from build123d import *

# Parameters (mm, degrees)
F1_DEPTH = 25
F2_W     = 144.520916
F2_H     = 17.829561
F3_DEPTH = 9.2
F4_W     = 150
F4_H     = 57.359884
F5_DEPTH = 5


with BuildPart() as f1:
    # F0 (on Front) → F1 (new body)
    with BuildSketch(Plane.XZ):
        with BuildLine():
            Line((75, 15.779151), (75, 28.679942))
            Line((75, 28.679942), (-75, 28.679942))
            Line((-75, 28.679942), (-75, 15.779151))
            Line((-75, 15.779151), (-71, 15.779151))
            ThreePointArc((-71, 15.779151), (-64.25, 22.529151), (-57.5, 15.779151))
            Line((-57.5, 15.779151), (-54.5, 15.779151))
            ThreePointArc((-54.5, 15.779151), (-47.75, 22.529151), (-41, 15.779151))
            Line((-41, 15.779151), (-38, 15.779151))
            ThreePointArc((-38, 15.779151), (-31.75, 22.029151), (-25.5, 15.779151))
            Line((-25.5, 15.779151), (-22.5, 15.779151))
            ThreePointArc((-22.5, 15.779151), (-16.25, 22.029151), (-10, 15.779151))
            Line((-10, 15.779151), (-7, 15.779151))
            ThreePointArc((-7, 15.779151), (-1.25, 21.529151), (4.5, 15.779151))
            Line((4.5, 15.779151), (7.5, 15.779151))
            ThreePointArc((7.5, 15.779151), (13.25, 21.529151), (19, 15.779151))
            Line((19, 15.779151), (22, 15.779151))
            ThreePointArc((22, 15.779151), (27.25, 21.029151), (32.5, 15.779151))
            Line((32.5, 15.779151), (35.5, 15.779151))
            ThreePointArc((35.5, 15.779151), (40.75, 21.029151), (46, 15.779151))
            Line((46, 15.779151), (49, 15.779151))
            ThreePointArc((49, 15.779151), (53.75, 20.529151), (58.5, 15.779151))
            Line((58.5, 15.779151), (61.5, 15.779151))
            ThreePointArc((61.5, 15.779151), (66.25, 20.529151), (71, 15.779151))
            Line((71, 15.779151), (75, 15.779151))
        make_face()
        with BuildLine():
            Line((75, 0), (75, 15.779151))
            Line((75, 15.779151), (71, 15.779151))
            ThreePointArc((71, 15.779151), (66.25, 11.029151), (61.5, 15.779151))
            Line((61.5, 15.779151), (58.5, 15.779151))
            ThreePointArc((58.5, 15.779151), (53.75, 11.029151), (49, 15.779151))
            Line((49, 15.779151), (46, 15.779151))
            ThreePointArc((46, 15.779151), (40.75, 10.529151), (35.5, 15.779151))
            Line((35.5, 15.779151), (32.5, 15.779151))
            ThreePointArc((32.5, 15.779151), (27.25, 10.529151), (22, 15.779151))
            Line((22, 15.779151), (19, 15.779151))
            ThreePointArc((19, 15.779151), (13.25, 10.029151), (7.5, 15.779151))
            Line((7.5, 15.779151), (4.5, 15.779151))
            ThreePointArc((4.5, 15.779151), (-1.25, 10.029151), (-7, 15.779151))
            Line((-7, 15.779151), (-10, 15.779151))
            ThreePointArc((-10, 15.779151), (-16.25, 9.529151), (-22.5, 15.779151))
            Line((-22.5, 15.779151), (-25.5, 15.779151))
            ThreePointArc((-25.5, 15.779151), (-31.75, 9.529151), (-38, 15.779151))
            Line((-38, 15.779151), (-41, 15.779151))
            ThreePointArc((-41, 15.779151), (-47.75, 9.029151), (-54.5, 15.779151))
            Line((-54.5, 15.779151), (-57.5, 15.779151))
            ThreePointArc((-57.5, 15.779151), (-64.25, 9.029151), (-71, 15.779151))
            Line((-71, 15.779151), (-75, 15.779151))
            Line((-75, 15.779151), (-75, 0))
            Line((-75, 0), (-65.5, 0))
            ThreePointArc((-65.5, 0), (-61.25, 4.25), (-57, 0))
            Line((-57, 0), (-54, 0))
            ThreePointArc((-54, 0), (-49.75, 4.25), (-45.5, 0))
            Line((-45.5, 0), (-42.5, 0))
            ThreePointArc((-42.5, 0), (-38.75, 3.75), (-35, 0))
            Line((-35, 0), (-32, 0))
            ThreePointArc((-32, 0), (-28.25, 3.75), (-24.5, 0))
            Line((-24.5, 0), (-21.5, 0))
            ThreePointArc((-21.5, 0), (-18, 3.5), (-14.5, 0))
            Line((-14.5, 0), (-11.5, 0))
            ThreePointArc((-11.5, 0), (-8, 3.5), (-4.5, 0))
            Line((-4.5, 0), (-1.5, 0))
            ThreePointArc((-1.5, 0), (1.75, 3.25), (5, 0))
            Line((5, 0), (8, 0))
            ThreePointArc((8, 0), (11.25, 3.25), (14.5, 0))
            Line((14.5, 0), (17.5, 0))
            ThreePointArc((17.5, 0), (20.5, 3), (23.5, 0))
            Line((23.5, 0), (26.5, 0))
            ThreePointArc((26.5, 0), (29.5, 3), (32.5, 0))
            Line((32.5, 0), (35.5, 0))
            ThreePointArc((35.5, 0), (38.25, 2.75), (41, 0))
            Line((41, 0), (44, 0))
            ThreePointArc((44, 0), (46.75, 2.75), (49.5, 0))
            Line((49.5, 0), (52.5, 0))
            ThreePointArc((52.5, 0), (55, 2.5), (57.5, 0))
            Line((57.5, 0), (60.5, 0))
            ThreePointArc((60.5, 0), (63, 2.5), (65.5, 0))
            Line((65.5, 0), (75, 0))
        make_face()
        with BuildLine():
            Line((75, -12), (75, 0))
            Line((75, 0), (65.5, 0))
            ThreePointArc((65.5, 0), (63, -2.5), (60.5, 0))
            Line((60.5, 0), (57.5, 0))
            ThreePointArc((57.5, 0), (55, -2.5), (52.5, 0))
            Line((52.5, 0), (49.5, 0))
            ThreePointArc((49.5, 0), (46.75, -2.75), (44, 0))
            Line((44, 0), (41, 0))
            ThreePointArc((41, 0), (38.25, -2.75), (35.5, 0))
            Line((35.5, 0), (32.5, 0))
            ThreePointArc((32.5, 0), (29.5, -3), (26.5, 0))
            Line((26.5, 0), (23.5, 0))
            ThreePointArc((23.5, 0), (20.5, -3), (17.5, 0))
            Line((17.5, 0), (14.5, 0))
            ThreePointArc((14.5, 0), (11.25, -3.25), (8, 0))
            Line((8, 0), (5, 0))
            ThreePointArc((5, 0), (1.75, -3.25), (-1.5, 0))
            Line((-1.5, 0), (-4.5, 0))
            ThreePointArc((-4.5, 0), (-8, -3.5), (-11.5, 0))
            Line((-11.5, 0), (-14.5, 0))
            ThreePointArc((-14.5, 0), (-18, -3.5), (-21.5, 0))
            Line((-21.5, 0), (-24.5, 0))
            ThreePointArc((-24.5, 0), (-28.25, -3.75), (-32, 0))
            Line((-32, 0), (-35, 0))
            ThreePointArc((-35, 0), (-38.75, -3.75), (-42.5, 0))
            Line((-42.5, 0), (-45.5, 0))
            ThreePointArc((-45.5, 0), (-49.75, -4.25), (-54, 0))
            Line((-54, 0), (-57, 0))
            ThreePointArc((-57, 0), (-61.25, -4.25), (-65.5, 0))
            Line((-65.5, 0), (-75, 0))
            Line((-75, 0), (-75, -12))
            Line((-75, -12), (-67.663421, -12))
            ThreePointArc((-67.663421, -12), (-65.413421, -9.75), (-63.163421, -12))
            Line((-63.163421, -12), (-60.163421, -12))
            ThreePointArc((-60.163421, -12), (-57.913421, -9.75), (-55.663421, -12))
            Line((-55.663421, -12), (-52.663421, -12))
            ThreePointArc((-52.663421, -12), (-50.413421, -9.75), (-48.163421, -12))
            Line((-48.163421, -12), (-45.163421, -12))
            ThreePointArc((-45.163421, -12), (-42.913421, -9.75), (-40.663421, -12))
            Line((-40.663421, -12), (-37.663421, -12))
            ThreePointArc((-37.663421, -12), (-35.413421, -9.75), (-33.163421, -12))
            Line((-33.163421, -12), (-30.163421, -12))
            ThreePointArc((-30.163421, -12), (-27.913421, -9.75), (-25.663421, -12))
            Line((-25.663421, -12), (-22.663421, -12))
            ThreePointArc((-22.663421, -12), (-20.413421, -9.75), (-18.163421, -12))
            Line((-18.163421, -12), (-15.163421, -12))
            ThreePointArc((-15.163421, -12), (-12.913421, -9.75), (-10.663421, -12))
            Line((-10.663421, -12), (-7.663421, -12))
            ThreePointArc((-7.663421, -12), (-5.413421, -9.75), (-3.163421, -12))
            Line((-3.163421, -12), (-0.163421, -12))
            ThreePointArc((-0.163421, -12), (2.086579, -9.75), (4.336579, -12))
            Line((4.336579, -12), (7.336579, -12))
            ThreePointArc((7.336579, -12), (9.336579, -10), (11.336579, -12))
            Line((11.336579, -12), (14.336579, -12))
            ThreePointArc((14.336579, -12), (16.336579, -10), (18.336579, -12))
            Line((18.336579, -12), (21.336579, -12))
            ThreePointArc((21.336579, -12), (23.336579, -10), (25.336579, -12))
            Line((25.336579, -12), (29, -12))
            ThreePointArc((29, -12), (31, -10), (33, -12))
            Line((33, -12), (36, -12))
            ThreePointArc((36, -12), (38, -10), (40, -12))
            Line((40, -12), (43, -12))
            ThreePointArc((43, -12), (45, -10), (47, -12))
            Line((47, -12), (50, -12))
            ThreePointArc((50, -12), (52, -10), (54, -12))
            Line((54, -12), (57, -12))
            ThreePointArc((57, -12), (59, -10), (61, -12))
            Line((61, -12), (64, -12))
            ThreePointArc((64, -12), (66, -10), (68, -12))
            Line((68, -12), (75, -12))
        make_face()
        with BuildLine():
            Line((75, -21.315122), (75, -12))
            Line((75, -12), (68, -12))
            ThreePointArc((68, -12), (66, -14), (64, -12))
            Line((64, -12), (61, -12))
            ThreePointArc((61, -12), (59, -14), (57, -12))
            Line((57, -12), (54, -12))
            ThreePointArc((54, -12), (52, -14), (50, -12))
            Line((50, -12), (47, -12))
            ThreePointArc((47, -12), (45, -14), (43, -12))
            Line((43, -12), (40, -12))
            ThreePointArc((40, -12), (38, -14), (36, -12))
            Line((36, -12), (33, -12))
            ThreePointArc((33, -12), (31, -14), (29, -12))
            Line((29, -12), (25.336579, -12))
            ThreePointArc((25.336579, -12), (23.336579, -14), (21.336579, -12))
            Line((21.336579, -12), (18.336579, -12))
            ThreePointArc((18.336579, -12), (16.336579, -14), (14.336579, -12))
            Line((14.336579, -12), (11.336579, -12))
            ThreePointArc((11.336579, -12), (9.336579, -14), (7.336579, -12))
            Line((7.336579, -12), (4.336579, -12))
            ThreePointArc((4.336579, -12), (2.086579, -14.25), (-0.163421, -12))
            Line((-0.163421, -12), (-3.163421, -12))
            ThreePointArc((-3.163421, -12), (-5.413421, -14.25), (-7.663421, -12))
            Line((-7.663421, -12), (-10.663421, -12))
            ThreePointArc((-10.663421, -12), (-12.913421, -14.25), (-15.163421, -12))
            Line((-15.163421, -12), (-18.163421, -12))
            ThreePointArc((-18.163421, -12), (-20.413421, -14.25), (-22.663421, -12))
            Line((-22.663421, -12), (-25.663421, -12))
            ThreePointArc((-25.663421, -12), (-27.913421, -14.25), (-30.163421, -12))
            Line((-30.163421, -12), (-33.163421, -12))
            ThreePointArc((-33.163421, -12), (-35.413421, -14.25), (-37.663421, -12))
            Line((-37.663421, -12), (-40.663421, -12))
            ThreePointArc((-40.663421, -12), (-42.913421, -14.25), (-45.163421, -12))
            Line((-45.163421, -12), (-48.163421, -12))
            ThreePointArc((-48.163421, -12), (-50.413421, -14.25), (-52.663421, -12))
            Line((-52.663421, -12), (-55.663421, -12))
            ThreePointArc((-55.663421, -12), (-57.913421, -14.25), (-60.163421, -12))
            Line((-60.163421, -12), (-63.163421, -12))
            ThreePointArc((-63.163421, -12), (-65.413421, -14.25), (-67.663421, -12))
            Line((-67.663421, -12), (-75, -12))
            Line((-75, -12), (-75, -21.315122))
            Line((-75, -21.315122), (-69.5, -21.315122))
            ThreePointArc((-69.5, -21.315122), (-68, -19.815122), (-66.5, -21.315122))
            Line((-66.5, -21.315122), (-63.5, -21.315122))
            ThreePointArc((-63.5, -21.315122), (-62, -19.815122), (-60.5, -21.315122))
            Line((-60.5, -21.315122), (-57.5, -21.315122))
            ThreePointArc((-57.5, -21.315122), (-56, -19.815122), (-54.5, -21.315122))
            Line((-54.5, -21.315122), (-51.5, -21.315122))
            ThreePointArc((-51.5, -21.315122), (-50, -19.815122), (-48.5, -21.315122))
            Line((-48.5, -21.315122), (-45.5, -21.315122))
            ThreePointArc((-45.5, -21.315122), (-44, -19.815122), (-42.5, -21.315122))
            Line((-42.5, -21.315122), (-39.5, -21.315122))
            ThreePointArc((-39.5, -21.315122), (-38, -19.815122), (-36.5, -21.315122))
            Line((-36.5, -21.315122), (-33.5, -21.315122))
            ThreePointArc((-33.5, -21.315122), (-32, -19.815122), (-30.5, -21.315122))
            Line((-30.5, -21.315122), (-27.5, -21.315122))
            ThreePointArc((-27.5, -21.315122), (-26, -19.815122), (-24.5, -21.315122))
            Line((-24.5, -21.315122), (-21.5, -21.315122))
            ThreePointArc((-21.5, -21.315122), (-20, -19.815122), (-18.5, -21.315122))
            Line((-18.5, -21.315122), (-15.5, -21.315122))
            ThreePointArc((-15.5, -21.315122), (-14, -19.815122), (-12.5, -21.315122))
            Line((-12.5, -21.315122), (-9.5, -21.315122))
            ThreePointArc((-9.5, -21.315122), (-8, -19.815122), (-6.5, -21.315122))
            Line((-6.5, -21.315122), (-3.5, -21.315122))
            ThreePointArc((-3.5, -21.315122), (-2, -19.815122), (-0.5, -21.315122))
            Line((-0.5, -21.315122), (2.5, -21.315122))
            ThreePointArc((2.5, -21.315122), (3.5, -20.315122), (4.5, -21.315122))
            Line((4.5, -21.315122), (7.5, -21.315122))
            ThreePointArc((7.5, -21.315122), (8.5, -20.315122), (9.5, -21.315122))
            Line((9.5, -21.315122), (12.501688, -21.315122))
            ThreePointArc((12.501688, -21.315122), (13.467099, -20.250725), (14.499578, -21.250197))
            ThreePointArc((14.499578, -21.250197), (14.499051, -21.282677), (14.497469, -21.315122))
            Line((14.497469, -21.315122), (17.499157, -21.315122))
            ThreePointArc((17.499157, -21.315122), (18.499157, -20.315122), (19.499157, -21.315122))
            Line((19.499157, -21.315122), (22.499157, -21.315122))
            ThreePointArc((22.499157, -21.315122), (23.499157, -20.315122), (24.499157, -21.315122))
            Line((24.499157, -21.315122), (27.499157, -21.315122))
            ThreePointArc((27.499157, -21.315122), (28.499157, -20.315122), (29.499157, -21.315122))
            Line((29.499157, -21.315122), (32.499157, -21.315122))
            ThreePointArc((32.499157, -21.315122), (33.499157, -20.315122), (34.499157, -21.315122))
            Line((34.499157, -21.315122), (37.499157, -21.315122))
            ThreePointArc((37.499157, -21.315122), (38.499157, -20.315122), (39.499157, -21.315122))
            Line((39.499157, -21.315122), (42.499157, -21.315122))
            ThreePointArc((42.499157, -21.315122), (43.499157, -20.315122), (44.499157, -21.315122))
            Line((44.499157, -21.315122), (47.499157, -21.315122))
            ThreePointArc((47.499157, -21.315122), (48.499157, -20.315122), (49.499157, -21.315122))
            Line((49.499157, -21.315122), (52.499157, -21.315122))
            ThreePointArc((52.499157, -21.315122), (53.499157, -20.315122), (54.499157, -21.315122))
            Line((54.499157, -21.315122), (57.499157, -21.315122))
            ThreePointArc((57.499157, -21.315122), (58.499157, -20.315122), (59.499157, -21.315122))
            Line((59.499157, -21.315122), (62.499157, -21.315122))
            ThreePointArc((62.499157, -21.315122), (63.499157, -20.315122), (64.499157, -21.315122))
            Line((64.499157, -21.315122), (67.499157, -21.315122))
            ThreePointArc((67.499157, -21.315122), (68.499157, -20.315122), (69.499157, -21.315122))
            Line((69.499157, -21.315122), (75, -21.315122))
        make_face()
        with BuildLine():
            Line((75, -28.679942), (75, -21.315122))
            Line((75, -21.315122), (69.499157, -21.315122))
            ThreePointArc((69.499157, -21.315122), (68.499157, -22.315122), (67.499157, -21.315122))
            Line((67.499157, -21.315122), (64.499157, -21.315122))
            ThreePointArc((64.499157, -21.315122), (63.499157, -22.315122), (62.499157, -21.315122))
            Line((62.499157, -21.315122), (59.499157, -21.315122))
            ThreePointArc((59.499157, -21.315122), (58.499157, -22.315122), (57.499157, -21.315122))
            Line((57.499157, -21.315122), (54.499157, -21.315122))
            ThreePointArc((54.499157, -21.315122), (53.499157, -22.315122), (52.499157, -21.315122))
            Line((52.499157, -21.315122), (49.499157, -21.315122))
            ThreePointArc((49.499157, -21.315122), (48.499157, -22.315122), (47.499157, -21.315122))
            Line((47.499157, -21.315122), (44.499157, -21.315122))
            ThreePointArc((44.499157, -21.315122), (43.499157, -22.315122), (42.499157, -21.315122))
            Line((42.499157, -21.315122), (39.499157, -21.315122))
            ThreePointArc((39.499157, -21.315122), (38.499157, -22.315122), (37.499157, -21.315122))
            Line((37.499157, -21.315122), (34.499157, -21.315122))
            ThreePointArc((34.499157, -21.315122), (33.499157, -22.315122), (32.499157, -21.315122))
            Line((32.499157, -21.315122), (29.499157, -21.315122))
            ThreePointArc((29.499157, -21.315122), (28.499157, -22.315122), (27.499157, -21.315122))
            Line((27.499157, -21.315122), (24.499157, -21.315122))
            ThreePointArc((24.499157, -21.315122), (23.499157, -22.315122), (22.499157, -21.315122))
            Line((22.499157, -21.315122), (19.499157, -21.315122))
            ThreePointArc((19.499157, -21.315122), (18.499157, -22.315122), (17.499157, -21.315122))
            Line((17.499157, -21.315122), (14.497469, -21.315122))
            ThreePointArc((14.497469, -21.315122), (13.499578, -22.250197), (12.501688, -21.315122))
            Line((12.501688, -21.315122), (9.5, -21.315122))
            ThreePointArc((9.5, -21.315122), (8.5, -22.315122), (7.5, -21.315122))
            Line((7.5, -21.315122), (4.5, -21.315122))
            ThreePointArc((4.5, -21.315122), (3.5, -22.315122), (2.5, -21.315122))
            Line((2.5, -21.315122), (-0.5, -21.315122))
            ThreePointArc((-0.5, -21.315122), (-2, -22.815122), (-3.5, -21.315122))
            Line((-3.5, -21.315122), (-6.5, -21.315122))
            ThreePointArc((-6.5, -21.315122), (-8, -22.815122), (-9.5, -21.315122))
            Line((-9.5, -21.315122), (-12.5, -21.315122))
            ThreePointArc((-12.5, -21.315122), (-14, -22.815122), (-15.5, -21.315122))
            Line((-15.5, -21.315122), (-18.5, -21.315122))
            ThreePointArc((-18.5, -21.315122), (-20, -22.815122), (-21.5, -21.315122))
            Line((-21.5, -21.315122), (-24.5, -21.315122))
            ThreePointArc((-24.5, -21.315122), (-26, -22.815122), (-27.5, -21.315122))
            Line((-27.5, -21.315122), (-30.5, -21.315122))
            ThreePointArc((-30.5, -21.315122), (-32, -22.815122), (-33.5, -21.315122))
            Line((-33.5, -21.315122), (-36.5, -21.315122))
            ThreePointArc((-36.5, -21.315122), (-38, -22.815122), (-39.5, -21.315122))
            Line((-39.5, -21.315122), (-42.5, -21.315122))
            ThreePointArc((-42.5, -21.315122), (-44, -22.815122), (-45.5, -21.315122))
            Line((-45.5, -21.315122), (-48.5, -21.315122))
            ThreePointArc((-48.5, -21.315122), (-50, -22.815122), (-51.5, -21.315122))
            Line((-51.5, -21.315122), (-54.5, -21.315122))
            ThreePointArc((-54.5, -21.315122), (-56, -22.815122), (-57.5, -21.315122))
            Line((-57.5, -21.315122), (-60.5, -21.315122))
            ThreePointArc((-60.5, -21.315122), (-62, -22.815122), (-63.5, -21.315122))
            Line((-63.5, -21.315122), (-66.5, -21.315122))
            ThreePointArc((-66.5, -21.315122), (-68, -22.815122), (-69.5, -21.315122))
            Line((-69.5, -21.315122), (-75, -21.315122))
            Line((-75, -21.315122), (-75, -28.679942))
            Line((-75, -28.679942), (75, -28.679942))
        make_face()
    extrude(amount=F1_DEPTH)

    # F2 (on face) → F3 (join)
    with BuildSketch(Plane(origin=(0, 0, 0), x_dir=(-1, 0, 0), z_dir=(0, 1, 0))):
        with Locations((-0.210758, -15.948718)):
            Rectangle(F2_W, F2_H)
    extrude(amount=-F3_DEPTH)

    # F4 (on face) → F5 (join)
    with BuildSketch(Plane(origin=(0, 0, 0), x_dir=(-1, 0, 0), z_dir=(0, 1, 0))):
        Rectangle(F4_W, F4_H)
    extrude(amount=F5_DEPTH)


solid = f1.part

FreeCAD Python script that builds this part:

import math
import FreeCAD as App
import Part
import Sketcher
from FreeCAD import Vector


def add_polygon(sketch, points):
    """Adds a closed chain of lines whose ends are joined by coincident constraints."""
    first, n = sketch.GeometryCount, len(points)
    for a, b in zip(points, points[1:] + points[:1]):
        sketch.addGeometry(Part.LineSegment(App.Vector(*a, 0), App.Vector(*b, 0)), False)
    for i in range(n):
        sketch.addConstraint(Sketcher.Constraint("Coincident", first + i, 2, first + (i + 1) % n, 1))

doc = App.newDocument("Part")
params = doc.addObject("Spreadsheet::Sheet", "Params")
for row, (alias, value) in enumerate([
    ("sketch1_diameter", "3 mm"),
    ("sketch1_diameter2", "2 mm"),
    ("sketch1_diameter3", "4 mm"),
    ("sketch1_diameter4", "7 mm"),
    ("sketch1_diameter5", "6 mm"),
    ("pad1_length", "25 mm"),
    ("pad2_length", "9.2 mm"),
    ("sketch3_width", "150 mm"),
    ("pad3_length", "5 mm"),
], start=1):
    params.set(f"A{row}", alias)
    params.set(f"B{row}", "=" + value)
    params.setAlias(f"B{row}", alias)

body = doc.addObject("PartDesign::Body", "Body")

# Sketch on XZ plane
sketch1 = body.newObject("Sketcher::SketchObject", "Sketch")
sketch1.AttachmentSupport = (doc.getObject("XZ_Plane"), [""])
sketch1.MapMode = "FlatFace"
add_polygon(sketch1, [(75, 28.68), (-75, 28.68), (-75, -28.68), (75, -28.68)])  # lines 0-3
sketch1.addGeometry(Part.Circle(Vector(-68, -21.32, 0), Vector(0, 0, 1), 1.5), False)  # 4
sketch1.addGeometry(Part.Circle(Vector(-62, -21.32, 0), Vector(0, 0, 1), 1.5), False)  # 5
sketch1.addGeometry(Part.Circle(Vector(-56, -21.32, 0), Vector(0, 0, 1), 1.5), False)  # 6
sketch1.addGeometry(Part.Circle(Vector(-50, -21.32, 0), Vector(0, 0, 1), 1.5), False)  # 7
sketch1.addGeometry(Part.Circle(Vector(-44, -21.32, 0), Vector(0, 0, 1), 1.5), False)  # 8
sketch1.addGeometry(Part.Circle(Vector(-38, -21.32, 0), Vector(0, 0, 1), 1.5), False)  # 9
sketch1.addGeometry(Part.Circle(Vector(-32, -21.32, 0), Vector(0, 0, 1), 1.5), False)  # 10
sketch1.addGeometry(Part.Circle(Vector(-26, -21.32, 0), Vector(0, 0, 1), 1.5), False)  # 11
sketch1.addGeometry(Part.Circle(Vector(-20, -21.32, 0), Vector(0, 0, 1), 1.5), False)  # 12
sketch1.addGeometry(Part.Circle(Vector(-14, -21.32, 0), Vector(0, 0, 1), 1.5), False)  # 13
sketch1.addGeometry(Part.Circle(Vector(-8, -21.32, 0), Vector(0, 0, 1), 1.5), False)  # 14
sketch1.addGeometry(Part.Circle(Vector(-2, -21.32, 0), Vector(0, 0, 1), 1.5), False)  # 15
sketch1.addGeometry(Part.Circle(Vector(3.5, -21.32, 0), Vector(0, 0, 1), 1), False)  # 16
sketch1.addGeometry(Part.Circle(Vector(8.5, -21.32, 0), Vector(0, 0, 1), 1), False)  # 17
sketch1.addGeometry(Part.ArcOfCircle(Part.Circle(Vector(13.5, -21.25, 0), Vector(0, 0, 1), 1), math.radians(0), math.radians(184)), False)  # 18
sketch1.addGeometry(Part.ArcOfCircle(Part.Circle(Vector(13.5, -21.25, 0), Vector(0, 0, 1), 1), math.radians(-3.72), math.radians(0)), False)  # 19
sketch1.addGeometry(Part.ArcOfCircle(Part.Circle(Vector(13.5, -21.25, 0), Vector(0, 0, 1), 1), math.radians(-176), math.radians(-4)), False)  # 20
sketch1.addGeometry(Part.Circle(Vector(18.5, -21.32, 0), Vector(0, 0, 1), 1), False)  # 21
sketch1.addGeometry(Part.Circle(Vector(23.5, -21.32, 0), Vector(0, 0, 1), 1), False)  # 22
sketch1.addGeometry(Part.Circle(Vector(28.5, -21.32, 0), Vector(0, 0, 1), 1), False)  # 23
sketch1.addGeometry(Part.Circle(Vector(33.5, -21.32, 0), Vector(0, 0, 1), 1), False)  # 24
sketch1.addGeometry(Part.Circle(Vector(38.5, -21.32, 0), Vector(0, 0, 1), 1), False)  # 25
sketch1.addGeometry(Part.Circle(Vector(43.5, -21.32, 0), Vector(0, 0, 1), 1), False)  # 26
sketch1.addGeometry(Part.Circle(Vector(48.5, -21.32, 0), Vector(0, 0, 1), 1), False)  # 27
sketch1.addGeometry(Part.Circle(Vector(53.5, -21.32, 0), Vector(0, 0, 1), 1), False)  # 28
sketch1.addGeometry(Part.Circle(Vector(58.5, -21.32, 0), Vector(0, 0, 1), 1), False)  # 29
sketch1.addGeometry(Part.Circle(Vector(63.5, -21.32, 0), Vector(0, 0, 1), 1), False)  # 30
sketch1.addGeometry(Part.Circle(Vector(68.5, -21.32, 0), Vector(0, 0, 1), 1), False)  # 31
sketch1.addGeometry(Part.Circle(Vector(-65.41, -12, 0), Vector(0, 0, 1), 2.25), False)  # 32
sketch1.addGeometry(Part.Circle(Vector(-57.91, -12, 0), Vector(0, 0, 1), 2.25), False)  # 33
sketch1.addGeometry(Part.Circle(Vector(-50.41, -12, 0), Vector(0, 0, 1), 2.25), False)  # 34
sketch1.addGeometry(Part.Circle(Vector(-42.91, -12, 0), Vector(0, 0, 1), 2.25), False)  # 35
sketch1.addGeometry(Part.Circle(Vector(-35.41, -12, 0), Vector(0, 0, 1), 2.25), False)  # 36
sketch1.addGeometry(Part.Circle(Vector(-27.91, -12, 0), Vector(0, 0, 1), 2.25), False)  # 37
sketch1.addGeometry(Part.Circle(Vector(-20.41, -12, 0), Vector(0, 0, 1), 2.25), False)  # 38
sketch1.addGeometry(Part.Circle(Vector(-12.91, -12, 0), Vector(0, 0, 1), 2.25), False)  # 39
sketch1.addGeometry(Part.Circle(Vector(-5.41, -12, 0), Vector(0, 0, 1), 2.25), False)  # 40
sketch1.addGeometry(Part.Circle(Vector(2.09, -12, 0), Vector(0, 0, 1), 2.25), False)  # 41
sketch1.addGeometry(Part.Circle(Vector(9.34, -12, 0), Vector(0, 0, 1), 2), False)  # 42
sketch1.addGeometry(Part.Circle(Vector(16.34, -12, 0), Vector(0, 0, 1), 2), False)  # 43
sketch1.addGeometry(Part.Circle(Vector(23.34, -12, 0), Vector(0, 0, 1), 2), False)  # 44
sketch1.addGeometry(Part.Circle(Vector(31, -12, 0), Vector(0, 0, 1), 2), False)  # 45
sketch1.addGeometry(Part.Circle(Vector(38, -12, 0), Vector(0, 0, 1), 2), False)  # 46
sketch1.addGeometry(Part.Circle(Vector(45, -12, 0), Vector(0, 0, 1), 2), False)  # 47
sketch1.addGeometry(Part.Circle(Vector(52, -12, 0), Vector(0, 0, 1), 2), False)  # 48
sketch1.addGeometry(Part.Circle(Vector(59, -12, 0), Vector(0, 0, 1), 2), False)  # 49
sketch1.addGeometry(Part.Circle(Vector(66, -12, 0), Vector(0, 0, 1), 2), False)  # 50
sketch1.addGeometry(Part.Circle(Vector(-61.25, 0, 0), Vector(0, 0, 1), 4.25), False)  # 51
sketch1.addGeometry(Part.Circle(Vector(-49.75, 0, 0), Vector(0, 0, 1), 4.25), False)  # 52
sketch1.addGeometry(Part.Circle(Vector(-38.75, 0, 0), Vector(0, 0, 1), 3.75), False)  # 53
sketch1.addGeometry(Part.Circle(Vector(-28.25, 0, 0), Vector(0, 0, 1), 3.75), False)  # 54
sketch1.addGeometry(Part.Circle(Vector(-18, 0, 0), Vector(0, 0, 1), 3.5), False)  # 55
sketch1.addGeometry(Part.Circle(Vector(-8, 0, 0), Vector(0, 0, 1), 3.5), False)  # 56
sketch1.addGeometry(Part.Circle(Vector(1.75, 0, 0), Vector(0, 0, 1), 3.25), False)  # 57
sketch1.addGeometry(Part.Circle(Vector(11.25, 0, 0), Vector(0, 0, 1), 3.25), False)  # 58
sketch1.addGeometry(Part.Circle(Vector(20.5, 0, 0), Vector(0, 0, 1), 3), False)  # 59
sketch1.addGeometry(Part.Circle(Vector(29.5, 0, 0), Vector(0, 0, 1), 3), False)  # 60
sketch1.addGeometry(Part.Circle(Vector(38.25, 0, 0), Vector(0, 0, 1), 2.75), False)  # 61
sketch1.addGeometry(Part.Circle(Vector(46.75, 0, 0), Vector(0, 0, 1), 2.75), False)  # 62
sketch1.addGeometry(Part.Circle(Vector(55, 0, 0), Vector(0, 0, 1), 2.5), False)  # 63
sketch1.addGeometry(Part.Circle(Vector(63, 0, 0), Vector(0, 0, 1), 2.5), False)  # 64
sketch1.addGeometry(Part.Circle(Vector(-64.25, 15.78, 0), Vector(0, 0, 1), 6.75), False)  # 65
sketch1.addGeometry(Part.Circle(Vector(-47.75, 15.78, 0), Vector(0, 0, 1), 6.75), False)  # 66
sketch1.addGeometry(Part.Circle(Vector(-31.75, 15.78, 0), Vector(0, 0, 1), 6.25), False)  # 67
sketch1.addGeometry(Part.Circle(Vector(-16.25, 15.78, 0), Vector(0, 0, 1), 6.25), False)  # 68
sketch1.addGeometry(Part.Circle(Vector(-1.25, 15.78, 0), Vector(0, 0, 1), 5.75), False)  # 69
sketch1.addGeometry(Part.Circle(Vector(13.25, 15.78, 0), Vector(0, 0, 1), 5.75), False)  # 70
sketch1.addGeometry(Part.Circle(Vector(27.25, 15.78, 0), Vector(0, 0, 1), 5.25), False)  # 71
sketch1.addGeometry(Part.Circle(Vector(40.75, 15.78, 0), Vector(0, 0, 1), 5.25), False)  # 72
sketch1.addGeometry(Part.Circle(Vector(53.75, 15.78, 0), Vector(0, 0, 1), 4.75), False)  # 73
sketch1.addGeometry(Part.Circle(Vector(66.25, 15.78, 0), Vector(0, 0, 1), 4.75), False)  # 74
sketch1.addConstraint([
    Sketcher.Constraint("Coincident", 18, 1, 19, 2),
    Sketcher.Constraint("Tangent", 19, 1, 20, 2),
    Sketcher.Constraint("Tangent", 20, 1, 18, 2),
    Sketcher.Constraint("Horizontal", 0),
    Sketcher.Constraint("Vertical", 1),
    Sketcher.Constraint("Horizontal", 2),
    Sketcher.Constraint("Vertical", 3),
    Sketcher.Constraint("Equal", 4, 5),
    Sketcher.Constraint("Equal", 5, 6),
    Sketcher.Constraint("Equal", 6, 7),
    Sketcher.Constraint("Equal", 7, 8),
    Sketcher.Constraint("Equal", 8, 9),
    Sketcher.Constraint("Equal", 9, 10),
    Sketcher.Constraint("Equal", 10, 11),
    Sketcher.Constraint("Equal", 11, 12),
    Sketcher.Constraint("Equal", 12, 13),
    Sketcher.Constraint("Equal", 13, 14),
    Sketcher.Constraint("Equal", 14, 15),
    Sketcher.Constraint("Equal", 16, 17),
    Sketcher.Constraint("Equal", 17, 18),
    Sketcher.Constraint("Equal", 20, 21),
    Sketcher.Constraint("Equal", 21, 22),
    Sketcher.Constraint("Equal", 22, 23),
    Sketcher.Constraint("Equal", 23, 24),
    Sketcher.Constraint("Equal", 24, 25),
    Sketcher.Constraint("Equal", 25, 26),
    Sketcher.Constraint("Equal", 26, 27),
    Sketcher.Constraint("Equal", 27, 28),
    Sketcher.Constraint("Equal", 28, 29),
    Sketcher.Constraint("Equal", 29, 30),
    Sketcher.Constraint("Equal", 30, 31),
    Sketcher.Constraint("Equal", 32, 33),
    Sketcher.Constraint("Equal", 33, 34),
    Sketcher.Constraint("Equal", 34, 35),
    Sketcher.Constraint("Equal", 35, 36),
    Sketcher.Constraint("Equal", 36, 37),
    Sketcher.Constraint("Equal", 37, 38),
    Sketcher.Constraint("Equal", 38, 39),
    Sketcher.Constraint("Equal", 39, 40),
    Sketcher.Constraint("Equal", 40, 41),
    Sketcher.Constraint("Equal", 42, 43),
    Sketcher.Constraint("Equal", 43, 44),
    Sketcher.Constraint("Equal", 44, 45),
    Sketcher.Constraint("Equal", 45, 46),
    Sketcher.Constraint("Equal", 46, 47),
    Sketcher.Constraint("Equal", 47, 48),
    Sketcher.Constraint("Equal", 48, 49),
    Sketcher.Constraint("Equal", 49, 50),
    Sketcher.Constraint("Equal", 51, 52),
    Sketcher.Constraint("Equal", 53, 54),
    Sketcher.Constraint("Equal", 55, 56),
    Sketcher.Constraint("Equal", 57, 58),
    Sketcher.Constraint("Equal", 59, 60),
    Sketcher.Constraint("Equal", 61, 62),
    Sketcher.Constraint("Equal", 63, 64),
    Sketcher.Constraint("Equal", 65, 66),
    Sketcher.Constraint("Equal", 67, 68),
    Sketcher.Constraint("Equal", 69, 70),
    Sketcher.Constraint("Equal", 71, 72),
    Sketcher.Constraint("Equal", 73, 74),
    Sketcher.Constraint("Symmetric", 0, 2, 2, 2, -1, 1),
    Sketcher.Constraint("PointOnObject", 51, 3, -1),
    Sketcher.Constraint("PointOnObject", 52, 3, -1),
    Sketcher.Constraint("PointOnObject", 53, 3, -1),
    Sketcher.Constraint("PointOnObject", 54, 3, -1),
    Sketcher.Constraint("PointOnObject", 55, 3, -1),
    Sketcher.Constraint("PointOnObject", 56, 3, -1),
    Sketcher.Constraint("PointOnObject", 57, 3, -1),
    Sketcher.Constraint("PointOnObject", 58, 3, -1),
    Sketcher.Constraint("PointOnObject", 59, 3, -1),
    Sketcher.Constraint("PointOnObject", 60, 3, -1),
    Sketcher.Constraint("PointOnObject", 61, 3, -1),
    Sketcher.Constraint("PointOnObject", 62, 3, -1),
    Sketcher.Constraint("PointOnObject", 63, 3, -1),
    Sketcher.Constraint("PointOnObject", 64, 3, -1),
    Sketcher.Constraint("Horizontal", 4, 3, 5, 3),
    Sketcher.Constraint("Horizontal", 5, 3, 6, 3),
    Sketcher.Constraint("Horizontal", 6, 3, 7, 3),
    Sketcher.Constraint("Horizontal", 7, 3, 8, 3),
    Sketcher.Constraint("Horizontal", 8, 3, 9, 3),
    Sketcher.Constraint("Horizontal", 9, 3, 10, 3),
    Sketcher.Constraint("Horizontal", 10, 3, 11, 3),
    Sketcher.Constraint("Horizontal", 11, 3, 12, 3),
    Sketcher.Constraint("Horizontal", 12, 3, 13, 3),
    Sketcher.Constraint("Horizontal", 13, 3, 14, 3),
    Sketcher.Constraint("Horizontal", 14, 3, 15, 3),
    Sketcher.Constraint("Horizontal", 15, 3, 16, 3),
    Sketcher.Constraint("Horizontal", 16, 3, 17, 3),
    Sketcher.Constraint("Horizontal", 17, 3, 21, 3),
    Sketcher.Constraint("Horizontal", 21, 3, 22, 3),
    Sketcher.Constraint("Horizontal", 22, 3, 23, 3),
    Sketcher.Constraint("Horizontal", 23, 3, 24, 3),
    Sketcher.Constraint("Horizontal", 24, 3, 25, 3),
    Sketcher.Constraint("Horizontal", 25, 3, 26, 3),
    Sketcher.Constraint("Horizontal", 26, 3, 27, 3),
    Sketcher.Constraint("Horizontal", 27, 3, 28, 3),
    Sketcher.Constraint("Horizontal", 28, 3, 29, 3),
    Sketcher.Constraint("Horizontal", 29, 3, 30, 3),
    Sketcher.Constraint("Horizontal", 30, 3, 31, 3),
    Sketcher.Constraint("Horizontal", 32, 3, 33, 3),
    Sketcher.Constraint("Horizontal", 33, 3, 34, 3),
    Sketcher.Constraint("Horizontal", 34, 3, 35, 3),
    Sketcher.Constraint("Horizontal", 35, 3, 36, 3),
    Sketcher.Constraint("Horizontal", 36, 3, 37, 3),
    Sketcher.Constraint("Horizontal", 37, 3, 38, 3),
    Sketcher.Constraint("Horizontal", 38, 3, 39, 3),
    Sketcher.Constraint("Horizontal", 39, 3, 40, 3),
    Sketcher.Constraint("Horizontal", 40, 3, 41, 3),
    Sketcher.Constraint("Horizontal", 41, 3, 42, 3),
    Sketcher.Constraint("Horizontal", 42, 3, 43, 3),
    Sketcher.Constraint("Horizontal", 43, 3, 44, 3),
    Sketcher.Constraint("Horizontal", 44, 3, 45, 3),
    Sketcher.Constraint("Horizontal", 45, 3, 46, 3),
    Sketcher.Constraint("Horizontal", 46, 3, 47, 3),
    Sketcher.Constraint("Horizontal", 47, 3, 48, 3),
    Sketcher.Constraint("Horizontal", 48, 3, 49, 3),
    Sketcher.Constraint("Horizontal", 49, 3, 50, 3),
    Sketcher.Constraint("Horizontal", 65, 3, 66, 3),
    Sketcher.Constraint("Horizontal", 66, 3, 67, 3),
    Sketcher.Constraint("Horizontal", 67, 3, 68, 3),
    Sketcher.Constraint("Horizontal", 68, 3, 69, 3),
    Sketcher.Constraint("Horizontal", 69, 3, 70, 3),
    Sketcher.Constraint("Horizontal", 70, 3, 71, 3),
    Sketcher.Constraint("Horizontal", 71, 3, 72, 3),
    Sketcher.Constraint("Horizontal", 72, 3, 73, 3),
    Sketcher.Constraint("Horizontal", 73, 3, 74, 3),
    Sketcher.Constraint("Horizontal", 20, 3, 18, 1),
    Sketcher.Constraint("Horizontal", 31, 3, 19, 1),
    Sketcher.Constraint("Horizontal", 19, 1, 20, 1),
    Sketcher.Constraint("Vertical", 14, 3, 56, 3),
    Sketcher.Constraint("Diameter", 4, 3.0),
    Sketcher.Constraint("Diameter", 16, 2.0),
    Sketcher.Constraint("Diameter", 42, 4.0),
    Sketcher.Constraint("Diameter", 55, 7.0),
    Sketcher.Constraint("Diameter", 59, 6.0),
    Sketcher.Constraint("Diameter", 63, 5.0),
    Sketcher.Constraint("Diameter", 32, 4.5),
    Sketcher.Constraint("Diameter", 51, 8.5),
    Sketcher.Constraint("Diameter", 53, 7.5),
    Sketcher.Constraint("Diameter", 57, 6.5),
    Sketcher.Constraint("Diameter", 61, 5.5),
    Sketcher.Constraint("Diameter", 65, 13.5),
    Sketcher.Constraint("Diameter", 67, 12.5),
    Sketcher.Constraint("Diameter", 69, 11.5),
    Sketcher.Constraint("Diameter", 71, 10.5),
    Sketcher.Constraint("Diameter", 73, 9.5),
    Sketcher.Constraint("DistanceX", 0, 2, 0, 1, 150.0),
    Sketcher.Constraint("DistanceX", 4, 3, -1, 1, 68.0),
    Sketcher.Constraint("DistanceX", 5, 3, -1, 1, 62.0),
    Sketcher.Constraint("DistanceX", 6, 3, -1, 1, 56.0),
    Sketcher.Constraint("DistanceX", 7, 3, -1, 1, 50.0),
    Sketcher.Constraint("DistanceX", 8, 3, -1, 1, 44.0),
    Sketcher.Constraint("DistanceX", 9, 3, -1, 1, 38.0),
    Sketcher.Constraint("DistanceX", 10, 3, -1, 1, 32.0),
    Sketcher.Constraint("DistanceX", 11, 3, -1, 1, 26.0),
    Sketcher.Constraint("DistanceX", 12, 3, -1, 1, 20.0),
    Sketcher.Constraint("DistanceX", 13, 3, -1, 1, 14.0),
    Sketcher.Constraint("DistanceX", 14, 3, -1, 1, 8.0),
    Sketcher.Constraint("DistanceX", 15, 3, -1, 1, 2.0),
    Sketcher.Constraint("DistanceY", 32, 3, -1, 1, 12.0),
    Sketcher.Constraint("DistanceX", -1, 1, 45, 3, 31.0),
    Sketcher.Constraint("DistanceX", -1, 1, 46, 3, 38.0),
    Sketcher.Constraint("DistanceX", -1, 1, 47, 3, 45.0),
    Sketcher.Constraint("DistanceX", -1, 1, 48, 3, 52.0),
    Sketcher.Constraint("DistanceX", -1, 1, 49, 3, 59.0),
    Sketcher.Constraint("DistanceX", -1, 1, 50, 3, 66.0),
    Sketcher.Constraint("DistanceX", 55, 3, -1, 1, 18.0),
    Sketcher.Constraint("DistanceX", -1, 1, 63, 3, 55.0),
    Sketcher.Constraint("DistanceX", -1, 1, 64, 3, 63.0),
    Sketcher.Constraint("DistanceX", -1, 1, 16, 3, 3.5),
    Sketcher.Constraint("DistanceX", -1, 1, 17, 3, 8.5),
    Sketcher.Constraint("DistanceX", -1, 1, 59, 3, 20.5),
    Sketcher.Constraint("DistanceX", -1, 1, 60, 3, 29.5),
    Sketcher.Constraint("DistanceX", 51, 3, -1, 1, 61.25),
    Sketcher.Constraint("DistanceX", 52, 3, -1, 1, 49.75),
    Sketcher.Constraint("DistanceX", 53, 3, -1, 1, 38.75),
    Sketcher.Constraint("DistanceX", 54, 3, -1, 1, 28.25),
    Sketcher.Constraint("DistanceX", -1, 1, 57, 3, 1.75),
    Sketcher.Constraint("DistanceX", -1, 1, 58, 3, 11.25),
    Sketcher.Constraint("DistanceX", -1, 1, 61, 3, 38.25),
    Sketcher.Constraint("DistanceX", -1, 1, 62, 3, 46.75),
    Sketcher.Constraint("DistanceX", 65, 3, -1, 1, 64.25),
    Sketcher.Constraint("DistanceX", 66, 3, -1, 1, 47.75),
    Sketcher.Constraint("DistanceX", 67, 3, -1, 1, 31.75),
    Sketcher.Constraint("DistanceX", 68, 3, -1, 1, 16.25),
    Sketcher.Constraint("DistanceX", 69, 3, -1, 1, 1.25),
    Sketcher.Constraint("DistanceX", -1, 1, 70, 3, 13.25),
    Sketcher.Constraint("DistanceX", -1, 1, 71, 3, 27.25),
    Sketcher.Constraint("DistanceX", -1, 1, 72, 3, 40.75),
    Sketcher.Constraint("DistanceX", -1, 1, 73, 3, 53.75),
    Sketcher.Constraint("DistanceX", -1, 1, 74, 3, 66.25),
    Sketcher.Constraint("Radius", 19, 0.999644),
    Sketcher.Constraint("DistanceY", 1, 2, 1, 1, 57.359884),
    Sketcher.Constraint("DistanceY", 4, 3, -1, 1, 21.315122),
    Sketcher.Constraint("DistanceX", -1, 1, 18, 3, 13.499578),
    Sketcher.Constraint("DistanceY", 19, 3, -1, 1, 21.250222),
    Sketcher.Constraint("DistanceX", 32, 3, -1, 1, 65.413421),
    Sketcher.Constraint("DistanceX", 33, 3, -1, 1, 57.913421),
    Sketcher.Constraint("DistanceX", 34, 3, -1, 1, 50.413421),
    Sketcher.Constraint("DistanceX", 35, 3, -1, 1, 42.913421),
    Sketcher.Constraint("DistanceX", 36, 3, -1, 1, 35.413421),
    Sketcher.Constraint("DistanceX", 37, 3, -1, 1, 27.913421),
    Sketcher.Constraint("DistanceX", 38, 3, -1, 1, 20.413421),
    Sketcher.Constraint("DistanceX", 39, 3, -1, 1, 12.913421),
    Sketcher.Constraint("DistanceX", 40, 3, -1, 1, 5.413421),
    Sketcher.Constraint("DistanceX", -1, 1, 41, 3, 2.086579),
    Sketcher.Constraint("DistanceX", -1, 1, 42, 3, 9.336579),
    Sketcher.Constraint("DistanceX", -1, 1, 43, 3, 16.336579),
    Sketcher.Constraint("DistanceX", -1, 1, 44, 3, 23.336579),
    Sketcher.Constraint("DistanceY", -1, 1, 65, 3, 15.779151),
    Sketcher.Constraint("DistanceX", -1, 1, 21, 3, 18.499157),
    Sketcher.Constraint("DistanceX", -1, 1, 22, 3, 23.499157),
    Sketcher.Constraint("DistanceX", -1, 1, 23, 3, 28.499157),
    Sketcher.Constraint("DistanceX", -1, 1, 24, 3, 33.499157),
    Sketcher.Constraint("DistanceX", -1, 1, 25, 3, 38.499157),
    Sketcher.Constraint("DistanceX", -1, 1, 26, 3, 43.499157),
    Sketcher.Constraint("DistanceX", -1, 1, 27, 3, 48.499157),
    Sketcher.Constraint("DistanceX", -1, 1, 28, 3, 53.499157),
    Sketcher.Constraint("DistanceX", -1, 1, 29, 3, 58.499157),
    Sketcher.Constraint("DistanceX", -1, 1, 30, 3, 63.499157),
    Sketcher.Constraint("DistanceX", -1, 1, 31, 3, 68.499157),
])
sketch1.setExpression("Constraints[134]", "Params.sketch1_diameter")
sketch1.setExpression("Constraints[135]", "Params.sketch1_diameter2")
sketch1.setExpression("Constraints[136]", "Params.sketch1_diameter3")
sketch1.setExpression("Constraints[137]", "Params.sketch1_diameter4")
sketch1.setExpression("Constraints[138]", "Params.sketch1_diameter5")
pad1 = body.newObject("PartDesign::Pad", "Pad")
pad1.Profile = sketch1
pad1.setExpression("Length", "Params.pad1_length")

# Sketch on XZ plane
sketch2 = body.newObject("Sketcher::SketchObject", "Sketch001")
sketch2.AttachmentSupport = (doc.getObject("XZ_Plane"), [""])
sketch2.MapMode = "FlatFace"
add_polygon(sketch2, [(72, -7), (72, -25), (-72, -25), (-72, -7)])  # lines 0-3
sketch2.addConstraint([
    Sketcher.Constraint("Vertical", 0),
    Sketcher.Constraint("Horizontal", 1),
    Sketcher.Constraint("Vertical", 2),
    Sketcher.Constraint("Horizontal", 3),
    Sketcher.Constraint("DistanceY", 0, 2, 0, 1, 17.829561),
    Sketcher.Constraint("DistanceY", 0, 2, -1, 1, 24.863498),
    Sketcher.Constraint("DistanceX", 1, 2, -1, 1, 72.0497),
    Sketcher.Constraint("DistanceX", 1, 2, 1, 1, 144.520916),
])
pad2 = body.newObject("PartDesign::Pad", "Pad001")
pad2.Profile = sketch2
pad2.setExpression("Length", "Params.pad2_length")

# Sketch on XZ plane
sketch3 = body.newObject("Sketcher::SketchObject", "Sketch002")
sketch3.AttachmentSupport = (doc.getObject("XZ_Plane"), [""])
sketch3.MapMode = "FlatFace"
add_polygon(sketch3, [(75, 29), (75, -29), (-75, -29), (-75, 29)])  # lines 0-3
sketch3.addConstraint([
    Sketcher.Constraint("Vertical", 0),
    Sketcher.Constraint("Horizontal", 1),
    Sketcher.Constraint("Vertical", 2),
    Sketcher.Constraint("Horizontal", 3),
    Sketcher.Constraint("Symmetric", 0, 2, 2, 2, -1, 1),
    Sketcher.Constraint("DistanceX", 1, 2, 1, 1, 150.0),
    Sketcher.Constraint("DistanceY", 0, 2, 0, 1, 57.359884),
])
sketch3.setExpression("Constraints[9]", "Params.sketch3_width")
pad3 = body.newObject("PartDesign::Pad", "Pad002")
pad3.Profile = sketch3
pad3.setExpression("Length", "Params.pad3_length")
pad3.Reversed = True

doc.recompute()
